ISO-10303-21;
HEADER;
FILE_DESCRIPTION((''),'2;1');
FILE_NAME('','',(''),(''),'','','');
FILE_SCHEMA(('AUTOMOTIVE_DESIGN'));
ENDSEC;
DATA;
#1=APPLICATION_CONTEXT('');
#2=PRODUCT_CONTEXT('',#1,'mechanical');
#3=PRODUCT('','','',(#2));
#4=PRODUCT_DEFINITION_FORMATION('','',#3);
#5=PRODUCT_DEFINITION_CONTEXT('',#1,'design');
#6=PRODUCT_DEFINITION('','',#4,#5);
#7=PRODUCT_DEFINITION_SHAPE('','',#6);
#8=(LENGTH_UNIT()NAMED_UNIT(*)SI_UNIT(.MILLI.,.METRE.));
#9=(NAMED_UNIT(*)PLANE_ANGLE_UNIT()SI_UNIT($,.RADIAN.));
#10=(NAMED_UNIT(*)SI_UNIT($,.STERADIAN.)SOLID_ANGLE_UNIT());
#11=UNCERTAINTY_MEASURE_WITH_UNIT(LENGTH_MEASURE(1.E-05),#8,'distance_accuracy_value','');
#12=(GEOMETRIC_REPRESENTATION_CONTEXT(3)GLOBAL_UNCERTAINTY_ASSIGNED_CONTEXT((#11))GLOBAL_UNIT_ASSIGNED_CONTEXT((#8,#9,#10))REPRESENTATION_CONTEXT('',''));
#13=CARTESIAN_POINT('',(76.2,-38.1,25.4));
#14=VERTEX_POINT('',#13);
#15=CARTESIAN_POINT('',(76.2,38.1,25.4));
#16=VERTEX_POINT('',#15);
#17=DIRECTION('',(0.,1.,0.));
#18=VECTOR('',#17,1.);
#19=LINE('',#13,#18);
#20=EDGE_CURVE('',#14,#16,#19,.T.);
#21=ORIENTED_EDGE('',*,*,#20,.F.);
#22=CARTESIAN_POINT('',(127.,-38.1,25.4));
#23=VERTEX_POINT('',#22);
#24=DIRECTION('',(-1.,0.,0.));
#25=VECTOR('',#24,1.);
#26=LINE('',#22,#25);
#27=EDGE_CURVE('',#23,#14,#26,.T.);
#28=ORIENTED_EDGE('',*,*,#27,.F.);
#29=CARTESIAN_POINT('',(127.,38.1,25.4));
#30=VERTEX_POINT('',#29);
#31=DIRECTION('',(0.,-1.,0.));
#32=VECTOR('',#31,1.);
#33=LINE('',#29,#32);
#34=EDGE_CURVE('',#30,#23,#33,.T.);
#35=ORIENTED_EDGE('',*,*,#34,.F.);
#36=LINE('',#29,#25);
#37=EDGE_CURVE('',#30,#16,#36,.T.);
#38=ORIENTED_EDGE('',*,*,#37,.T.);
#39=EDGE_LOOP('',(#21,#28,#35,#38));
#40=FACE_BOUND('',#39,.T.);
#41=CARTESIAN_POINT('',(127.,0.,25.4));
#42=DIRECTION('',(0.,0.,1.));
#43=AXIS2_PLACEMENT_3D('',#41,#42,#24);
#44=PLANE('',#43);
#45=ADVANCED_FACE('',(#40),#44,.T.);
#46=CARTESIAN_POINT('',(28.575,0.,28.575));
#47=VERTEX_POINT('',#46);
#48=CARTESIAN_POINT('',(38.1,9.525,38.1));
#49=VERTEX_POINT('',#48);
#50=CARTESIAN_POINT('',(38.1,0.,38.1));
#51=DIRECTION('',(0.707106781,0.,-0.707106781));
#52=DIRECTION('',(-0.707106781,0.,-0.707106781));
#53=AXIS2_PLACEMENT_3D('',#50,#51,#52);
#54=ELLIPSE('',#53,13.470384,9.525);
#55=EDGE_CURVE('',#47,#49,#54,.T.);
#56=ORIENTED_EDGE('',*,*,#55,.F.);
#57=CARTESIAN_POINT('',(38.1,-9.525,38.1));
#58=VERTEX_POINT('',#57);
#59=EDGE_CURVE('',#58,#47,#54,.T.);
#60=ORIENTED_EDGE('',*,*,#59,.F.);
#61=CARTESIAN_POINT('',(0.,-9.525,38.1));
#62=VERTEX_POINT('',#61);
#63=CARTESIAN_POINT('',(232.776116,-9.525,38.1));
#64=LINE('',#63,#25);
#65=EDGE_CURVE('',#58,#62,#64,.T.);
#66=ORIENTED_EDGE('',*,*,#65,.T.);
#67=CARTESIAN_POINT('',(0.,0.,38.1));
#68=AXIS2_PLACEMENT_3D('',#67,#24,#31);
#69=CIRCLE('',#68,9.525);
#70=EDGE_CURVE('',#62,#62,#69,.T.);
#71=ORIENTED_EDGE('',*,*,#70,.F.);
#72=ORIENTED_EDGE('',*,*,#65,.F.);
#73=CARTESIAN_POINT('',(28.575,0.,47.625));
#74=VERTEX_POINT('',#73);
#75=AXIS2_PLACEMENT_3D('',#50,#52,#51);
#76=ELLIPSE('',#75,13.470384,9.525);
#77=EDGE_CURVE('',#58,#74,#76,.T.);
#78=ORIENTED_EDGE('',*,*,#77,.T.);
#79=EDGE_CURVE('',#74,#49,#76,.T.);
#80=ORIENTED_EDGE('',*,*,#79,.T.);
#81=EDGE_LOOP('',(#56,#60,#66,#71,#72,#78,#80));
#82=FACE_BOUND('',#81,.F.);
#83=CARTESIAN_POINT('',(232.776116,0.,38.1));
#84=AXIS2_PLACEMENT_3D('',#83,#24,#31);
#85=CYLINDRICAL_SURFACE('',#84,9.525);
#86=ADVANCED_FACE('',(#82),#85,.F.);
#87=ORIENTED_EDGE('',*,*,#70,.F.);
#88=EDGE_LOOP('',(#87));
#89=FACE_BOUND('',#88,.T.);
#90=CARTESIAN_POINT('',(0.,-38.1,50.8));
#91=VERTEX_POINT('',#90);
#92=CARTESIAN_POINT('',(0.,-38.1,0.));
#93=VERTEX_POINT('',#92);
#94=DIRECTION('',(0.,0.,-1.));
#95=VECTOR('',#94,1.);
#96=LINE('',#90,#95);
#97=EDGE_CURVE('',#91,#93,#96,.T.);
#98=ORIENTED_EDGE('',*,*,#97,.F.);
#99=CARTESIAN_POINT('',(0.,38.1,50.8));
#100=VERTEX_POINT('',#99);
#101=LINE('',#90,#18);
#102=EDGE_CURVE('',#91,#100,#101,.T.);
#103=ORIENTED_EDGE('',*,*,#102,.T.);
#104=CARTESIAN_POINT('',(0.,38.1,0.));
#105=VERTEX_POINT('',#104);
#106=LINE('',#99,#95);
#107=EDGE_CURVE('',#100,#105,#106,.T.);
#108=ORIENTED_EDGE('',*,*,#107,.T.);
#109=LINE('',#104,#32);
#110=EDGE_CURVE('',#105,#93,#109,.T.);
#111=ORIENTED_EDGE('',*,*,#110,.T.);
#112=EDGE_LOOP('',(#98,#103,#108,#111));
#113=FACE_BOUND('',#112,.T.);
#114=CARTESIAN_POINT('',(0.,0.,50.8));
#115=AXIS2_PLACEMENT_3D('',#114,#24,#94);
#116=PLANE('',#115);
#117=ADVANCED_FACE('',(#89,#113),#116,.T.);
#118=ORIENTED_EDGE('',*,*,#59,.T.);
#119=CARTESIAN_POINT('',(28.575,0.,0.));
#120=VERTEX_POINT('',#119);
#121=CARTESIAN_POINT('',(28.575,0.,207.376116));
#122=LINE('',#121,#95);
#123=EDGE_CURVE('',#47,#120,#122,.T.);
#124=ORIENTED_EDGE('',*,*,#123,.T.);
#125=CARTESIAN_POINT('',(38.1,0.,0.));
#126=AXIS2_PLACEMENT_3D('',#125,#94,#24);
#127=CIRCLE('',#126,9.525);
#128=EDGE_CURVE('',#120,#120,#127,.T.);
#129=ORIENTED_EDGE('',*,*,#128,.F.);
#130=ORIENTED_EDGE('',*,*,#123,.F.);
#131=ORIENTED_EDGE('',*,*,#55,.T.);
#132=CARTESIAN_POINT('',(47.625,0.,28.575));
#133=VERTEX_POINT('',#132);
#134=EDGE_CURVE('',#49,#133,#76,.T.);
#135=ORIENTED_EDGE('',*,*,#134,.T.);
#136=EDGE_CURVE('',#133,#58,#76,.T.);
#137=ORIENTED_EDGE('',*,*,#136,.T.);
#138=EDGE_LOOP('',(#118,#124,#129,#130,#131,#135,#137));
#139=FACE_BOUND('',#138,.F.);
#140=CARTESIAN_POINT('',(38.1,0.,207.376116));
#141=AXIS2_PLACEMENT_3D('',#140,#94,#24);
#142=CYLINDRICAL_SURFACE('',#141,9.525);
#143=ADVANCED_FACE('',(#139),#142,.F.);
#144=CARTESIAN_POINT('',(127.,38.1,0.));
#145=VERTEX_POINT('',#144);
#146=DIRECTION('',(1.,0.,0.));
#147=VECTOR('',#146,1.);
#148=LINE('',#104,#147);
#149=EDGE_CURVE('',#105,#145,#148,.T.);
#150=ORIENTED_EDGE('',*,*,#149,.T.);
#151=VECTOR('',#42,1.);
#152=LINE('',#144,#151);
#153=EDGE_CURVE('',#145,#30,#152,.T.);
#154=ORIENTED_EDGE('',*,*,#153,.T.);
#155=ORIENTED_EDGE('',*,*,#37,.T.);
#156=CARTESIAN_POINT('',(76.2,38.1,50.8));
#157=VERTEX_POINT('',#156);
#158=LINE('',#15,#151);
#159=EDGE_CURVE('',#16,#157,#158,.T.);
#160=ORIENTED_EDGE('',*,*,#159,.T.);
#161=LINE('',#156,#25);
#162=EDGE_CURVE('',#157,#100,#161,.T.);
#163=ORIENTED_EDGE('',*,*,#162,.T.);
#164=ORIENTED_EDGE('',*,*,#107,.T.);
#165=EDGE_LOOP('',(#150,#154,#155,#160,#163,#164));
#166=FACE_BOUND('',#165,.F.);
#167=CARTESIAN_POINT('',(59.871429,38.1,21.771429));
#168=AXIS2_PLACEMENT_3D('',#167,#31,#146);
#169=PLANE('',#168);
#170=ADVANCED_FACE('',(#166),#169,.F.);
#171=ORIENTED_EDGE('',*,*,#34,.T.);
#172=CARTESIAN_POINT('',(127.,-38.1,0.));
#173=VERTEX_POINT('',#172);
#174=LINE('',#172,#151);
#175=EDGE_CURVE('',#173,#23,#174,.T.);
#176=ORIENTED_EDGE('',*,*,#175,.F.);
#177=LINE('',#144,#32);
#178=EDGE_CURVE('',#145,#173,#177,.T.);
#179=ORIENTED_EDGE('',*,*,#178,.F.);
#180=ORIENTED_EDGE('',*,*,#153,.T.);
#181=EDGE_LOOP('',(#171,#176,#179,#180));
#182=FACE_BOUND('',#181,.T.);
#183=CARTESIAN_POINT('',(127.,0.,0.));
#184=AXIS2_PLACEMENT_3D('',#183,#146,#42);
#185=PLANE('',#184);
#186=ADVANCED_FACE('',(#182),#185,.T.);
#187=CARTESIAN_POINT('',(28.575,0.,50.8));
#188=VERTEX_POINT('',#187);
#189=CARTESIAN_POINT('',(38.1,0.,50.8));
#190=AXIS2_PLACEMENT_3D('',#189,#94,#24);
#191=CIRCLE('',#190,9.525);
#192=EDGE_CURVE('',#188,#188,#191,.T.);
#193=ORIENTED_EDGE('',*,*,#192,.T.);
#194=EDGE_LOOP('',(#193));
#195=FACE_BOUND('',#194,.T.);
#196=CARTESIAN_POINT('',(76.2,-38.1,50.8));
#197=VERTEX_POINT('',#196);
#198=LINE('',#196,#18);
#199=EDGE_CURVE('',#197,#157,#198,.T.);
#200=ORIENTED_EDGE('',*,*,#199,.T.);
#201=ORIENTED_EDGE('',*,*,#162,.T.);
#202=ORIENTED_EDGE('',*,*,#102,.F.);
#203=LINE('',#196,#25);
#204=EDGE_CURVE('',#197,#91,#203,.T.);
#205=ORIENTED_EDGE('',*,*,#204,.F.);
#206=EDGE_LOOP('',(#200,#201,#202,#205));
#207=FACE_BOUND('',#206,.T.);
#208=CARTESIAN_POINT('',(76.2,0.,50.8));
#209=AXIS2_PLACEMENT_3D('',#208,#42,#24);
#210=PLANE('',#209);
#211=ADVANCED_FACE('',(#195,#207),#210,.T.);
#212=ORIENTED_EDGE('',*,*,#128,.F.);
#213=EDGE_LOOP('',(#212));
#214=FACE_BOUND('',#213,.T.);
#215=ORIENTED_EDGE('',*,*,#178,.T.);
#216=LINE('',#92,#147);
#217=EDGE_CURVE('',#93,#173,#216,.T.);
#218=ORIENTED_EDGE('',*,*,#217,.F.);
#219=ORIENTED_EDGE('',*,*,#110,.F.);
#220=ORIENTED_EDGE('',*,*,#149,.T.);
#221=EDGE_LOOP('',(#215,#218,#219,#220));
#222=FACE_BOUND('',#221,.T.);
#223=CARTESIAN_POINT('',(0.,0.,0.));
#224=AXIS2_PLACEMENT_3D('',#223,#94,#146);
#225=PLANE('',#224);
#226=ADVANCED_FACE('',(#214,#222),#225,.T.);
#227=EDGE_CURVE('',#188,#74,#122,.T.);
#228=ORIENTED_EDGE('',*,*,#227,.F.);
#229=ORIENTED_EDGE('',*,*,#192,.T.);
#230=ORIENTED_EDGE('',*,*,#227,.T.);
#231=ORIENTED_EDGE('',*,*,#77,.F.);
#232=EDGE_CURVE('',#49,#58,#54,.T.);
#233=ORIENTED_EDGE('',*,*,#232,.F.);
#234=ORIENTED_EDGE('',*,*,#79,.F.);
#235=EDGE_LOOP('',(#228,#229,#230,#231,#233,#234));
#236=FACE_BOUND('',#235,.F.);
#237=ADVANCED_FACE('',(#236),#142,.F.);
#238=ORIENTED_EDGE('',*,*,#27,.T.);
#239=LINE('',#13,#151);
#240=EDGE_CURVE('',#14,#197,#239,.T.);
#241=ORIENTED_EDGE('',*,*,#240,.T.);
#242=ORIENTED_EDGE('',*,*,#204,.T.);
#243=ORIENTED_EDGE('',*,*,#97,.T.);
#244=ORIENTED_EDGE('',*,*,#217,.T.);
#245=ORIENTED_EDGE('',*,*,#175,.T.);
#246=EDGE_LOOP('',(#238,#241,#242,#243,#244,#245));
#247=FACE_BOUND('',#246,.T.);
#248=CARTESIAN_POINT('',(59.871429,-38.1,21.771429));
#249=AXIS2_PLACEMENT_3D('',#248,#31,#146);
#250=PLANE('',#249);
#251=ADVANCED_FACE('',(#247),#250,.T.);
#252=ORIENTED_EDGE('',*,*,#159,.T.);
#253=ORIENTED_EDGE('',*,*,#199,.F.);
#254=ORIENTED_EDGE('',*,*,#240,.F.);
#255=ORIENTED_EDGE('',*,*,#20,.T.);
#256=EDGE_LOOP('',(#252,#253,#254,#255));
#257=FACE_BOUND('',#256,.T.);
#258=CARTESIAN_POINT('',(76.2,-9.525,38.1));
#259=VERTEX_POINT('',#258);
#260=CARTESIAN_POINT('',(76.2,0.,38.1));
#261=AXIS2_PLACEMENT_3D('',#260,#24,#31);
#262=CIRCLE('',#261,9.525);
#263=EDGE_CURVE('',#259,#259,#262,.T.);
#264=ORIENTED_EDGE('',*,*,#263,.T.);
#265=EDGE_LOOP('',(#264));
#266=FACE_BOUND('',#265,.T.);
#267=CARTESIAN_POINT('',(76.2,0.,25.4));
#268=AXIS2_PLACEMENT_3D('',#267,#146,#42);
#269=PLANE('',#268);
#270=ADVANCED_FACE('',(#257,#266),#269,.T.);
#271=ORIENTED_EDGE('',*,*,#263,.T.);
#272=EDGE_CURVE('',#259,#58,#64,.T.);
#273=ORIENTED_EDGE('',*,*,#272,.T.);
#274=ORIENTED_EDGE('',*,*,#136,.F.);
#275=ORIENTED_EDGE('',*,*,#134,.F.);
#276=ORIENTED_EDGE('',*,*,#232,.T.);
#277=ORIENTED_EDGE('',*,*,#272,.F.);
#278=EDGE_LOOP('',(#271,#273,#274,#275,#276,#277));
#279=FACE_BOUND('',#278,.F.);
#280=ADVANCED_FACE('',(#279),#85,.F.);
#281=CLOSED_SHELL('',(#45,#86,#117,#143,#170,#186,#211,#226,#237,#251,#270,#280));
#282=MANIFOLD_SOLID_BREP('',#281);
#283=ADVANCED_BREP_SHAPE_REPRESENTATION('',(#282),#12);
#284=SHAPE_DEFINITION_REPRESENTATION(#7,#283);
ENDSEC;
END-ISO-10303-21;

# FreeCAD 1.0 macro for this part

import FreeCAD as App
import Part
import Sketcher

V = App.Vector
Q = App.Units.Quantity


def add_polygon(sketch, points):
    """Adds a closed chain of lines whose ends are joined by coincident constraints."""
    first, n = sketch.GeometryCount, len(points)
    for a, b in zip(points, points[1:] + points[:1]):
        sketch.addGeometry(Part.LineSegment(App.Vector(*a, 0), App.Vector(*b, 0)), False)
    for i in range(n):
        sketch.addConstraint(Sketcher.Constraint("Coincident", first + i, 2, first + (i + 1) % n, 1))

doc = App.newDocument("Part")
body = doc.addObject("PartDesign::Body", "Body")

# Sketch on XZ plane
sketch1 = doc.addObject("Sketcher::SketchObject", "Sketch")
body.addObject(sketch1)
sketch1.AttachmentSupport = (doc.XZ_Plane, [""])
sketch1.MapMode = "FlatFace"
add_polygon(sketch1, [(0, 51), (0, 0), (127, 0), (127, 25), (76, 25), (76, 51)])  # lines 0-5
sketch1.addConstraint([
    Sketcher.Constraint("Vertical", 0),
    Sketcher.Constraint("Horizontal", 1),
    Sketcher.Constraint("Vertical", 2),
    Sketcher.Constraint("Horizontal", 3),
    Sketcher.Constraint("Vertical", 4),
    Sketcher.Constraint("Horizontal", 5),
    Sketcher.Constraint("Coincident", 0, 2, -1, 1),
    Sketcher.Constraint("Equal", 3, 0),
    Sketcher.Constraint("Equal", 2, 4),
    Sketcher.Constraint("DistanceX", 1, 1, 1, 2, Q("5 in")),
    Sketcher.Constraint("DistanceX", 3, 2, 3, 1, Q("2 in")),
])
pad1 = doc.addObject("PartDesign::Pad", "Pad")
body.addObject(pad1)
pad1.Profile = sketch1
pad1.Length = Q("3 in")
pad1.Midplane = True

# Sketch on XY plane
sketch2 = doc.addObject("Sketcher::SketchObject", "Sketch001")
body.addObject(sketch2)
sketch2.AttachmentSupport = (doc.XY_Plane, [""])
sketch2.MapMode = "FlatFace"
sketch2.AttachmentOffset = App.Placement(V(0, 0, 2 * 25.4), App.Rotation())
sketch2.addGeometry(Part.Circle(V(38, 0, 0), V(0, 0, 1), 10), False)
sketch2.addConstraint([
    Sketcher.Constraint("PointOnObject", 0, 3, -1),
    Sketcher.Constraint("Diameter", 0, Q("0.75 in")),
    Sketcher.Constraint("DistanceX", -1, 1, 0, 3, Q("1.5 in")),
])
doc.recompute()
hole = doc.addObject("PartDesign::Hole", "Hole")
body.addObject(hole)
hole.Profile = sketch2
hole.ThreadType = "None"
hole.Diameter = Q("0.75 in")
hole.DepthType = "ThroughAll"

# Sketch on YZ plane
sketch3 = doc.addObject("Sketcher::SketchObject", "Sketch002")
body.addObject(sketch3)
sketch3.AttachmentSupport = (doc.YZ_Plane, [""])
sketch3.MapMode = "FlatFace"
sketch3.AttachmentOffset = App.Placement(V(0, 0, 3 * 25.4), App.Rotation())
sketch3.addGeometry(Part.Circle(V(0, 38, 0), V(0, 0, 1), 10), False)
sketch3.addConstraint([
    Sketcher.Constraint("PointOnObject", 0, 3, -2),
    Sketcher.Constraint("Diameter", 0, Q("0.75 in")),
    Sketcher.Constraint("DistanceY", -1, 1, 0, 3, Q("1.5 in")),
])
doc.recompute()
hole2 = doc.addObject("PartDesign::Hole", "Hole001")
body.addObject(hole2)
hole2.Profile = sketch3
hole2.ThreadType = "None"
hole2.Diameter = Q("0.75 in")
hole2.DepthType = "ThroughAll"

doc.recompute()
